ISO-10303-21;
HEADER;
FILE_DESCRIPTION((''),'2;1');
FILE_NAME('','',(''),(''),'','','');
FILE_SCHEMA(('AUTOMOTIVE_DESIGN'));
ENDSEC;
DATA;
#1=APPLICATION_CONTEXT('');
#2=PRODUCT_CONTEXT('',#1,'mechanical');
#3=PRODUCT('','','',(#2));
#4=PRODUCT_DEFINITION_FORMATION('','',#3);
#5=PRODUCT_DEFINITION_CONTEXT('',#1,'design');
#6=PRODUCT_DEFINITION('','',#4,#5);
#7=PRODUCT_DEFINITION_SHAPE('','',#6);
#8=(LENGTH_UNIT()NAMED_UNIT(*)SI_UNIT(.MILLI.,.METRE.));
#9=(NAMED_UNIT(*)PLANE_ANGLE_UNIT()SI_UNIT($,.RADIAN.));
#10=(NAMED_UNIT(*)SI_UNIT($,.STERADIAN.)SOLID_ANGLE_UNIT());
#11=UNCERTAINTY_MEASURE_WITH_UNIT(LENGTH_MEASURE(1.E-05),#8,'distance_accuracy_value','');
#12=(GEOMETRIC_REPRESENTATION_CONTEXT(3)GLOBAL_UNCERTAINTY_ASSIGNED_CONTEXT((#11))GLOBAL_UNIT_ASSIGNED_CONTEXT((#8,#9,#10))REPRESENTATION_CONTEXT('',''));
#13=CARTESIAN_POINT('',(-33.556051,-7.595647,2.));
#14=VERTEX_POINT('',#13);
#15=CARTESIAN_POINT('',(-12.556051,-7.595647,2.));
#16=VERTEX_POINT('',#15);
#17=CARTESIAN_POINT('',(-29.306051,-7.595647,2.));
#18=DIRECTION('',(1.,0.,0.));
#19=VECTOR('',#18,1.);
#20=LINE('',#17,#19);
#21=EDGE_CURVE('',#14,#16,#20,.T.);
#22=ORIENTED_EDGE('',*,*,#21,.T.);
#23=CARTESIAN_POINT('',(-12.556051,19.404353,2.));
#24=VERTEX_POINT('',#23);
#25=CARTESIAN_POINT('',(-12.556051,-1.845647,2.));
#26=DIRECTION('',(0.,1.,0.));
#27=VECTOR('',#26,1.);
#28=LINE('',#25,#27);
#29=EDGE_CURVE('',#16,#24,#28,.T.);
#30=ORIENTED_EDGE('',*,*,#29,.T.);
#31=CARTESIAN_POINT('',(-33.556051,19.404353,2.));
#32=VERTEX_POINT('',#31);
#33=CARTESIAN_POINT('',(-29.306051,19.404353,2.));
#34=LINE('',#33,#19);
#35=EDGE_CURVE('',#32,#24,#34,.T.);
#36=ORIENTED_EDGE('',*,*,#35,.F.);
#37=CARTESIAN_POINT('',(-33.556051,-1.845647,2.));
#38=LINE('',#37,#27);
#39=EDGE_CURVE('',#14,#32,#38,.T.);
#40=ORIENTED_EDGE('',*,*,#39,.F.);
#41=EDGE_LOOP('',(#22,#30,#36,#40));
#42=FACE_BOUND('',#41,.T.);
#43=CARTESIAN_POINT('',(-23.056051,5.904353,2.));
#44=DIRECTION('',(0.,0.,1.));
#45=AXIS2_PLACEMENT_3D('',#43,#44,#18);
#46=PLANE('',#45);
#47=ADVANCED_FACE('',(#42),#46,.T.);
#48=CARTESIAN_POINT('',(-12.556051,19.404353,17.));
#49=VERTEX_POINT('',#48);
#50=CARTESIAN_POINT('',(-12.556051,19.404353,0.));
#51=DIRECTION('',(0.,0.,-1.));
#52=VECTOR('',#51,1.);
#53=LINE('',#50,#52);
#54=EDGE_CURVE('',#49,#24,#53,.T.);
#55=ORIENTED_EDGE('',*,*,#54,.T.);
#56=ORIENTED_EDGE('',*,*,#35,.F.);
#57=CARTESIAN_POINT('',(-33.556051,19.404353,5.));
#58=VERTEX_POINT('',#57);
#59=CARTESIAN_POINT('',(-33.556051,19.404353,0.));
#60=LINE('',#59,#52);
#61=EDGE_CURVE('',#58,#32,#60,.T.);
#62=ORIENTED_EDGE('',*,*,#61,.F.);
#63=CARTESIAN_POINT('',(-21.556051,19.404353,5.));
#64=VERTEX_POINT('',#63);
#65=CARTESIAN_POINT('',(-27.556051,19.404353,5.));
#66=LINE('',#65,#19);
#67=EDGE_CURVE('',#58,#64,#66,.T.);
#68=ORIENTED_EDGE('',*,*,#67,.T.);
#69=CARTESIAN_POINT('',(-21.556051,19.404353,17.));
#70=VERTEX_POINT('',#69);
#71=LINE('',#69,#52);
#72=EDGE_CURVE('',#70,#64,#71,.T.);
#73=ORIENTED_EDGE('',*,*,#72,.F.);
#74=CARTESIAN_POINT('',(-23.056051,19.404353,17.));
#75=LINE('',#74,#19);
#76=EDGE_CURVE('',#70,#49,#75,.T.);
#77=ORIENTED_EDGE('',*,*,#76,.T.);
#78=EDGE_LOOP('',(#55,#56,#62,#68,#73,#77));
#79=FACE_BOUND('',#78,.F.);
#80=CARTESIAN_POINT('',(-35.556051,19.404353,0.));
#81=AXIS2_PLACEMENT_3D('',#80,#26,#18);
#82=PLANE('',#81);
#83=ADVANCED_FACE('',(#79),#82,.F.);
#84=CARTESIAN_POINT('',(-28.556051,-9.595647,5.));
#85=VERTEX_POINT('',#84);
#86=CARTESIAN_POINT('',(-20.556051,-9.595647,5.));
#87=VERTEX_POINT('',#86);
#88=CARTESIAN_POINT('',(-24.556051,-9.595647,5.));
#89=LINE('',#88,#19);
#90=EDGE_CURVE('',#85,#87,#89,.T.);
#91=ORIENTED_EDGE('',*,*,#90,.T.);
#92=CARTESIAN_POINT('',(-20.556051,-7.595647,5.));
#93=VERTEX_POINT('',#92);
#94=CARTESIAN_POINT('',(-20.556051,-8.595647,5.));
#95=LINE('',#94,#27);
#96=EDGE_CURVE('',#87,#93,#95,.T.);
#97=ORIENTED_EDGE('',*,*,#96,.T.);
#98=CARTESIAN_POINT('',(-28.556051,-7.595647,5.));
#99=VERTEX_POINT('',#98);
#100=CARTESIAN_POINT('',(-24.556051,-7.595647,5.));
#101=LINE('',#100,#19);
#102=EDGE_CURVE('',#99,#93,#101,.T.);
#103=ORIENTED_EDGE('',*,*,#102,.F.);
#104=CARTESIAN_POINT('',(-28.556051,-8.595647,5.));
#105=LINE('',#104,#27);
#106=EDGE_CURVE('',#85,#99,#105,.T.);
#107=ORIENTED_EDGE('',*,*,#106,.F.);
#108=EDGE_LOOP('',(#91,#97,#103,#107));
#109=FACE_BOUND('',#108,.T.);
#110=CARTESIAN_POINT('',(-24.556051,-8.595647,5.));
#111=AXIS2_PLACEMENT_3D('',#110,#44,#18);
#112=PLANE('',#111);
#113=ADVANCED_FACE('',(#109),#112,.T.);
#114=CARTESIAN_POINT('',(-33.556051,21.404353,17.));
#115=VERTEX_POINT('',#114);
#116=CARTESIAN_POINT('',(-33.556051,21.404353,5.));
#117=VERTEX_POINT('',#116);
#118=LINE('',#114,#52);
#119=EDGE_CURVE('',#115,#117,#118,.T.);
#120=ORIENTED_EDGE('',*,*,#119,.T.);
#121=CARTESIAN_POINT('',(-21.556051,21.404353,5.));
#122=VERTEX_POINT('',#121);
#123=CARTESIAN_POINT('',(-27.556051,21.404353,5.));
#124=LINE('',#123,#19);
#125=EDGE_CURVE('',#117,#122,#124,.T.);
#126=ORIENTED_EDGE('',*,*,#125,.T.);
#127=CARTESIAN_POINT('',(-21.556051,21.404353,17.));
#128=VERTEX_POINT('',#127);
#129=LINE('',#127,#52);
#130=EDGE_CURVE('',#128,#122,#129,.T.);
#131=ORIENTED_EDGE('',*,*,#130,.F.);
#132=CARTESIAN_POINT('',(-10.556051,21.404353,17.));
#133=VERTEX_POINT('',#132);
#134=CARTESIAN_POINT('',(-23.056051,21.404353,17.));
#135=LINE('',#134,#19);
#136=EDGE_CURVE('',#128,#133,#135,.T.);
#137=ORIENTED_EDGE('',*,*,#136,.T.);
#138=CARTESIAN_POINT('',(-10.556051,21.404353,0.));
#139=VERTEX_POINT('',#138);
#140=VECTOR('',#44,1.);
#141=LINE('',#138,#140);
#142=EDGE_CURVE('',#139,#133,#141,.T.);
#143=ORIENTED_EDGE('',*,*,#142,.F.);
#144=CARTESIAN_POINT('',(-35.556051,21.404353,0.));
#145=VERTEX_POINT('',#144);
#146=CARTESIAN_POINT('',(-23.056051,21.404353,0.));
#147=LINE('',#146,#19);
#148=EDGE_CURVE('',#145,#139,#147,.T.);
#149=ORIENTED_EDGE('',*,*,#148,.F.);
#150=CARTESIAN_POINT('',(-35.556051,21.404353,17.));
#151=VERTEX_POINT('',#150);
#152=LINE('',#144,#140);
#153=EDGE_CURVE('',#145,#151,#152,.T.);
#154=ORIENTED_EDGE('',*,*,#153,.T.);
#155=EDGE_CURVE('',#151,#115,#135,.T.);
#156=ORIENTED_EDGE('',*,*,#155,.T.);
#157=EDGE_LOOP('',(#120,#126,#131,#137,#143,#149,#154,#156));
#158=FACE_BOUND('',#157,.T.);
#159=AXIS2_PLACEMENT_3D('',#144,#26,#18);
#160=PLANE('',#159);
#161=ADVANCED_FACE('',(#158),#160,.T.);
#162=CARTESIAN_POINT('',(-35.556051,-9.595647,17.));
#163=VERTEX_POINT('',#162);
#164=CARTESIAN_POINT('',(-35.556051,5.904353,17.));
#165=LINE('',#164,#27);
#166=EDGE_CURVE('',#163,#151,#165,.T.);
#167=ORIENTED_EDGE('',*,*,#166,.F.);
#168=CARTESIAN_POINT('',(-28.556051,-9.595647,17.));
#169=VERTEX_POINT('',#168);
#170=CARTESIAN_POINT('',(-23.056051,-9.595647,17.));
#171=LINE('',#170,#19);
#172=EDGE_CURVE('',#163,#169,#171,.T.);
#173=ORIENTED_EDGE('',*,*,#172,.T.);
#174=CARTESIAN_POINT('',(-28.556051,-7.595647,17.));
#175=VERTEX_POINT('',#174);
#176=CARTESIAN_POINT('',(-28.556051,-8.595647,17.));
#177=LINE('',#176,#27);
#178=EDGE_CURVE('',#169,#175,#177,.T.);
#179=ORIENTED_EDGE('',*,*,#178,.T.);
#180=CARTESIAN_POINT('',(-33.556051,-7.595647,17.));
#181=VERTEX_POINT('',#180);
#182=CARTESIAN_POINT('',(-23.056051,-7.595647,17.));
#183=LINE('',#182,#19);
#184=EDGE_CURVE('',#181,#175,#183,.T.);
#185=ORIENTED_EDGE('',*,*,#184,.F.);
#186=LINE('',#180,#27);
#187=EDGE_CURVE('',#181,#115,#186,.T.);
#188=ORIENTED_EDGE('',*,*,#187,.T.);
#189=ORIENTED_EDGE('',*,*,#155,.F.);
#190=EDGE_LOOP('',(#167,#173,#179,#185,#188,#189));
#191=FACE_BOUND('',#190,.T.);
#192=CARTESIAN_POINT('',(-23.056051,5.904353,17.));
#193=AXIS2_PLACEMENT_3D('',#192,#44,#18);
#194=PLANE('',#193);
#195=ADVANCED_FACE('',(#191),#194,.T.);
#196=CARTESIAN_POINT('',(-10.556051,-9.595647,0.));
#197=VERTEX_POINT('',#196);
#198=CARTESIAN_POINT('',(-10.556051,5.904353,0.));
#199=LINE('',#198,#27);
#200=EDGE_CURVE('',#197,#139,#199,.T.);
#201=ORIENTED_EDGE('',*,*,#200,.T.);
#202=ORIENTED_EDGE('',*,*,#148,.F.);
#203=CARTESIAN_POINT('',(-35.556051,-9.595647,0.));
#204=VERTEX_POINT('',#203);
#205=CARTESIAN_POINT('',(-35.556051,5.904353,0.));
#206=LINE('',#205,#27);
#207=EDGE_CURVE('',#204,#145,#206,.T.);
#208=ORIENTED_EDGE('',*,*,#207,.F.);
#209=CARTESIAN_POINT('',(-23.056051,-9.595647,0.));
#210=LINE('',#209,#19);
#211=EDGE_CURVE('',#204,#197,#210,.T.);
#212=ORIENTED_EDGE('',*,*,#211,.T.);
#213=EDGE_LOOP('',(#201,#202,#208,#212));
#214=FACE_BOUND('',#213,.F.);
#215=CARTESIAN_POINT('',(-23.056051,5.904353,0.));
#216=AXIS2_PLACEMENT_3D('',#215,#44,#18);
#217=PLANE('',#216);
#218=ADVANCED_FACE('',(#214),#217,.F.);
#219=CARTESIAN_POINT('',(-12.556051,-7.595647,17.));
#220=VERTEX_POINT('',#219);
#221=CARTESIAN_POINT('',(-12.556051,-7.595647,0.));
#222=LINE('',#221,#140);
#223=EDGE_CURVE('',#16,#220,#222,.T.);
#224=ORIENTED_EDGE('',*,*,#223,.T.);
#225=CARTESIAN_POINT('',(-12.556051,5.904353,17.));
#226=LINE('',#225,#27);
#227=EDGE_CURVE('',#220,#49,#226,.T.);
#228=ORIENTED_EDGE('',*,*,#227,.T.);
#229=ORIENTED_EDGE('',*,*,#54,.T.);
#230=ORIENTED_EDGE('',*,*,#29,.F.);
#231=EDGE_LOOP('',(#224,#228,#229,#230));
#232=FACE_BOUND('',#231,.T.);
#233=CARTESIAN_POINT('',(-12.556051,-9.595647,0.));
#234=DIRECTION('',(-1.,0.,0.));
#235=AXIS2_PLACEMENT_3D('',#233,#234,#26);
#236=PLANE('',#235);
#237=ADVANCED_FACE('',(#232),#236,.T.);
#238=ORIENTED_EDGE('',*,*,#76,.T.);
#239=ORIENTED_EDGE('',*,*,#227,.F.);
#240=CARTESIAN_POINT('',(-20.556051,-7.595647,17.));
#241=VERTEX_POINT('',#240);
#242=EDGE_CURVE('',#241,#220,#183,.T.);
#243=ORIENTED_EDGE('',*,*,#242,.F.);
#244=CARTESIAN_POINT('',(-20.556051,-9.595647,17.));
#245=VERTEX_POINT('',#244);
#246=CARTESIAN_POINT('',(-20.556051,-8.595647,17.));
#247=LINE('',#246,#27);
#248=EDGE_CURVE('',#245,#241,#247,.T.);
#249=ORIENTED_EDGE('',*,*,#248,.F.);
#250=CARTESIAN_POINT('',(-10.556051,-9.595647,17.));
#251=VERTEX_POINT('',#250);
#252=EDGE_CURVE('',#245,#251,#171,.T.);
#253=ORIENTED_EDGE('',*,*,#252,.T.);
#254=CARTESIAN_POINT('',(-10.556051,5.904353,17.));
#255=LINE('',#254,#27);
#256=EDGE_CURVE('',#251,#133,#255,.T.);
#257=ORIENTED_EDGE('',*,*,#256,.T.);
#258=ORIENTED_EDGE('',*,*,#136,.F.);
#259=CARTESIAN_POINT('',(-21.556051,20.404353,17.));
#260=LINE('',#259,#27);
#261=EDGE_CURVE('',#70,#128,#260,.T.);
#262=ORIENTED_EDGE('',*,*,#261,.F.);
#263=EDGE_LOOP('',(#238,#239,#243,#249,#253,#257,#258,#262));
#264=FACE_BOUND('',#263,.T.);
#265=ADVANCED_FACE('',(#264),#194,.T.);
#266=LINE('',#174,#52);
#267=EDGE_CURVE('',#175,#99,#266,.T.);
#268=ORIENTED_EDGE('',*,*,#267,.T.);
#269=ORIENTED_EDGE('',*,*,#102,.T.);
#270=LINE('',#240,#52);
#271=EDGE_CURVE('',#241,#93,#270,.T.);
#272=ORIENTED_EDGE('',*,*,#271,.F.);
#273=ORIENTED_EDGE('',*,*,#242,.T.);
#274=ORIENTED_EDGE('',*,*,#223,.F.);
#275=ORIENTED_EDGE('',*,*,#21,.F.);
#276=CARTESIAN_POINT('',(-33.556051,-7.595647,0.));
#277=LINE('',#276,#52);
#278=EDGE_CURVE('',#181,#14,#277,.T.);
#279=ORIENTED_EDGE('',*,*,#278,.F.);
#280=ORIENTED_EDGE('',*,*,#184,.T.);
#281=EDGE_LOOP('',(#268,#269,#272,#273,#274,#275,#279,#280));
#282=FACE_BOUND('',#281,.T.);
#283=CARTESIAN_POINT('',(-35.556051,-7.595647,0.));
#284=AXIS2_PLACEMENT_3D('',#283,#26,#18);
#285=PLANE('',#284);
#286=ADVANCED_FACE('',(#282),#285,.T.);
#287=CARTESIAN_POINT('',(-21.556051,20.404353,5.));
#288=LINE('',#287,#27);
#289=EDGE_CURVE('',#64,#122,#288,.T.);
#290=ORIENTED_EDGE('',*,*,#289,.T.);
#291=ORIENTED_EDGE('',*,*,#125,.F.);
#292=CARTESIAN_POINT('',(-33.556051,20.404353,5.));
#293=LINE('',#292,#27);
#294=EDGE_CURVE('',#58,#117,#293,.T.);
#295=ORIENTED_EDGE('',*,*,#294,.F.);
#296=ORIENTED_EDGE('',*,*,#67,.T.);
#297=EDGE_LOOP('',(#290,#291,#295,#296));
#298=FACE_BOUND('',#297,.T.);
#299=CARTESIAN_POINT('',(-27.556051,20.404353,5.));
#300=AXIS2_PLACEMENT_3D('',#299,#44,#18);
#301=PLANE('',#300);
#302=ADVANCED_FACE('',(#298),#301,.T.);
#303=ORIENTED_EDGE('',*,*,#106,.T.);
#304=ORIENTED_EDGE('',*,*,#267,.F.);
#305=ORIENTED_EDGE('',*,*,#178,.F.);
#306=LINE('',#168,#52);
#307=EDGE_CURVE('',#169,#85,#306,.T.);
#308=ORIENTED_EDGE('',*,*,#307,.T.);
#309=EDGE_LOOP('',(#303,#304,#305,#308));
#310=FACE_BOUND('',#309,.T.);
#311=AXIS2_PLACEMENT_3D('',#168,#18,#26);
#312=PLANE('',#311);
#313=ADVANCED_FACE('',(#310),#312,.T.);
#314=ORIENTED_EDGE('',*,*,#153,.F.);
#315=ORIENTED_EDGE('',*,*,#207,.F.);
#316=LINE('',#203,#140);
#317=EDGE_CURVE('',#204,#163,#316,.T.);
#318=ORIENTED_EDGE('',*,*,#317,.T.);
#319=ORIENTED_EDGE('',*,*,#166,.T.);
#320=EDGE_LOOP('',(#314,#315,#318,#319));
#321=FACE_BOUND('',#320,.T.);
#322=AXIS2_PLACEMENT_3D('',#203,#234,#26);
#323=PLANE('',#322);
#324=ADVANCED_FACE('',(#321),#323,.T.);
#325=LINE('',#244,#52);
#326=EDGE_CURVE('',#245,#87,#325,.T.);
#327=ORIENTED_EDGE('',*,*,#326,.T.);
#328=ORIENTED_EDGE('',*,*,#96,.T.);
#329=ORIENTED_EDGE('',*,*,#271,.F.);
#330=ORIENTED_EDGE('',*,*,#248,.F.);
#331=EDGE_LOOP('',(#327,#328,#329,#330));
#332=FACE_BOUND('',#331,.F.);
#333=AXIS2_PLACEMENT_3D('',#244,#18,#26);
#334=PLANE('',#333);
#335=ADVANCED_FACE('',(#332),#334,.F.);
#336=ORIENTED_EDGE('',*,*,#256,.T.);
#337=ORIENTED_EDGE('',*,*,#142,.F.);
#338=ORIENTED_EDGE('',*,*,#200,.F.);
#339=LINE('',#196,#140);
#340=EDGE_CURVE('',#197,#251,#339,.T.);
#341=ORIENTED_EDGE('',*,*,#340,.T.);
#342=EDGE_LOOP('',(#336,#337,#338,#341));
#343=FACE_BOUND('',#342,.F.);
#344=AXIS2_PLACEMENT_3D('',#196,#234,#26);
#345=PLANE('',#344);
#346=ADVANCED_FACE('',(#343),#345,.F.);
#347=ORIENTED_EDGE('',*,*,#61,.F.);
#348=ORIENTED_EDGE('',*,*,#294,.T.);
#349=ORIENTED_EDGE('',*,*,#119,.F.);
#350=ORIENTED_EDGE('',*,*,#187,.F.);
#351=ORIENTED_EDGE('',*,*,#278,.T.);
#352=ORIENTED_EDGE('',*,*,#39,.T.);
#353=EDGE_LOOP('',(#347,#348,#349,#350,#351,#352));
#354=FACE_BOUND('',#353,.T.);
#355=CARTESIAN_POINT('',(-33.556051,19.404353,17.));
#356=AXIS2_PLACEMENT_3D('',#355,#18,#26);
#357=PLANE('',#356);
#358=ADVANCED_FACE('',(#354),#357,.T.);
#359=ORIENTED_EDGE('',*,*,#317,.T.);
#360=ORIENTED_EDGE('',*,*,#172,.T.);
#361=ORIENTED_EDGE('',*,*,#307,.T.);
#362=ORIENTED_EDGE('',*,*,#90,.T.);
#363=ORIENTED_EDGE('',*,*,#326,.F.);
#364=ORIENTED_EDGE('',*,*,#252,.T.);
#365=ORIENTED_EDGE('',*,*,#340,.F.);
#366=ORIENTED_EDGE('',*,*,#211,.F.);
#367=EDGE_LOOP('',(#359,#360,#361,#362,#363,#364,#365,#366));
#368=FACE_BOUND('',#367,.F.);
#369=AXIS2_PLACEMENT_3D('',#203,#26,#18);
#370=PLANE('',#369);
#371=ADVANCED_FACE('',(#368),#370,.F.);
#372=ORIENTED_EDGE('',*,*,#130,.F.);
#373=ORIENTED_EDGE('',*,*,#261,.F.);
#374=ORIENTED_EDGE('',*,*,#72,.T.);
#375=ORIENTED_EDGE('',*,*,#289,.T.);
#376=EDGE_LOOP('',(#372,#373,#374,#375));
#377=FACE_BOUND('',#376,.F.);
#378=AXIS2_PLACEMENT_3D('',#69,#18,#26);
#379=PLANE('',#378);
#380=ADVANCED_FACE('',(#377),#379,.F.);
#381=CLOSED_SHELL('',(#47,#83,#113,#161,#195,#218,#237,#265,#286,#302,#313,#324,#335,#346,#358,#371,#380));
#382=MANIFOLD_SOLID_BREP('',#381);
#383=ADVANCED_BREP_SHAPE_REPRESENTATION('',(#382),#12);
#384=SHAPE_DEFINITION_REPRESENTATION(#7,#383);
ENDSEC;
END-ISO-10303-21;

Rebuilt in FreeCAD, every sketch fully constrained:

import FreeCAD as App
import Part
import Sketcher
from FreeCAD import Vector


def faces_at(feature, points):
    """Names of the faces that lie closest to the given points."""
    faces = feature.Shape.Faces
    near = lambda p: min(range(len(faces)), key=lambda i: faces[i].distToShape(Part.Vertex(*p))[0])
    return sorted({f"Face{near(p) + 1}" for p in points})


def add_polygon(sketch, points):
    """Adds a closed chain of lines whose ends are joined by coincident constraints."""
    first, n = sketch.GeometryCount, len(points)
    for a, b in zip(points, points[1:] + points[:1]):
        sketch.addGeometry(Part.LineSegment(App.Vector(*a, 0), App.Vector(*b, 0)), False)
    for i in range(n):
        sketch.addConstraint(Sketcher.Constraint("Coincident", first + i, 2, first + (i + 1) % n, 1))

doc = App.newDocument("Part")
body = doc.addObject("PartDesign::Body", "Body")

sketch1 = body.newObject("Sketcher::SketchObject", "Sketch")
sketch1.AttachmentSupport = (doc.getObject("XY_Plane"), [""])
sketch1.MapMode = "FlatFace"
add_polygon(sketch1, [(-35.556051, 21.404353), (-35.556051, -9.595647), (-10.556051, -9.595647), (-10.556051, 21.404353)])
sketch1.addConstraint(Sketcher.Constraint("Vertical", 0))
sketch1.addConstraint(Sketcher.Constraint("Horizontal", 1))
sketch1.addConstraint(Sketcher.Constraint("Vertical", 2))
sketch1.addConstraint(Sketcher.Constraint("Horizontal", 3))
sketch1.addConstraint(Sketcher.Constraint("DistanceX", 1, 1, 1, 2, 25.0))
sketch1.addConstraint(Sketcher.Constraint("DistanceY", 0, 2, 0, 1, 31.0))
sketch1.addConstraint(Sketcher.Constraint("DistanceX", 0, 2, -1, 1, 35.556051))
sketch1.addConstraint(Sketcher.Constraint("DistanceY", 0, 2, -1, 1, 9.595647))
pad1 = body.newObject("PartDesign::Pad", "Pad")
pad1.Profile = sketch1
pad1.Length = 17
doc.recompute()

thickness = body.newObject("PartDesign::Thickness", "Thickness")
thickness.Base = (pad1, faces_at(pad1, [(-23.056, 5.904, 17)]))
thickness.Value = 2
thickness.Reversed = True
thickness.Join = "Arc"

sketch2 = body.newObject("Sketcher::SketchObject", "Sketch001")
sketch2.AttachmentSupport = (doc.getObject("XY_Plane"), [""])
sketch2.MapMode = "FlatFace"
sketch2.AttachmentOffset = App.Placement(Vector(0, 0, 17), App.Rotation())
add_polygon(sketch2, [(-28.556051, -7.595647), (-28.556051, -9.595647), (-20.556051, -9.595647), (-20.556051, -7.595647)])
add_polygon(sketch2, [(-33.556051, 21.404353), (-33.556051, 19.404353), (-21.556051, 19.404353), (-21.556051, 21.404353)])
sketch2.addConstraint(Sketcher.Constraint("Vertical", 0))
sketch2.addConstraint(Sketcher.Constraint("Horizontal", 1))
sketch2.addConstraint(Sketcher.Constraint("Vertical", 2))
sketch2.addConstraint(Sketcher.Constraint("Horizontal", 3))
sketch2.addConstraint(Sketcher.Constraint("Vertical", 4))
sketch2.addConstraint(Sketcher.Constraint("Horizontal", 5))
sketch2.addConstraint(Sketcher.Constraint("Vertical", 6))
sketch2.addConstraint(Sketcher.Constraint("Horizontal", 7))
sketch2.addConstraint(Sketcher.Constraint("Equal", 2, 4))
sketch2.addConstraint(Sketcher.Constraint("DistanceX", 1, 1, 1, 2, 8.0))
sketch2.addConstraint(Sketcher.Constraint("DistanceX", 5, 1, 5, 2, 12.0))
sketch2.addConstraint(Sketcher.Constraint("DistanceY", 0, 2, 0, 1, 2.0))
sketch2.addConstraint(Sketcher.Constraint("DistanceX", 4, 2, 3, 2, 5.0))
sketch2.addConstraint(Sketcher.Constraint("DistanceY", 3, 2, 4, 2, 27.0))
sketch2.addConstraint(Sketcher.Constraint("DistanceX", 0, 2, -1, 1, 28.556051))
sketch2.addConstraint(Sketcher.Constraint("DistanceY", 0, 2, -1, 1, 9.595647))
pocket1 = body.newObject("PartDesign::Pocket", "Pocket")
pocket1.Profile = sketch2
pocket1.Length = 12

doc.recompute()
